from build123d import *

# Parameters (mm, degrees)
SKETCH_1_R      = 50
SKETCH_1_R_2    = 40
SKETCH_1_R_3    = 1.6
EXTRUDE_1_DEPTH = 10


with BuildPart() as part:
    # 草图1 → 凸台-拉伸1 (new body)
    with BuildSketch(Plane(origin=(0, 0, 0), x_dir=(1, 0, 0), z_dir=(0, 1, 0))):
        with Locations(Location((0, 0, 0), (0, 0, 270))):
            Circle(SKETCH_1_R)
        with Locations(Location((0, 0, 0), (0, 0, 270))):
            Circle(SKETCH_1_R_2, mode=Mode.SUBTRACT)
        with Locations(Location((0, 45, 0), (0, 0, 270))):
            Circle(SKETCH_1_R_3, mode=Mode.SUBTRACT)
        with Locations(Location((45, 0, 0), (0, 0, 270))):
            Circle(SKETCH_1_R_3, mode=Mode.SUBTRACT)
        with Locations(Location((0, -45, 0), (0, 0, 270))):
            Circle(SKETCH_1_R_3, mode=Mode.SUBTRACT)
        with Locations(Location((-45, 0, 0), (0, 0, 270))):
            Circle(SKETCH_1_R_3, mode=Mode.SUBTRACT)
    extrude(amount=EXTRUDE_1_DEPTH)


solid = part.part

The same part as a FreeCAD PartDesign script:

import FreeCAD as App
import Part
import Sketcher

V = App.Vector

doc = App.newDocument("Part")
params = doc.addObject("Spreadsheet::Sheet", "Params")
for row, (alias, value) in enumerate([
    ("sketch1_diameter", "100 mm"),
    ("sketch1_diameter2", "80 mm"),
    ("sketch1_diameter3", "3.2 mm"),
    ("pad1_length", "10 mm"),
], start=1):
    params.set(f"A{row}", alias)
    params.set(f"B{row}", "=" + value)
    params.setAlias(f"B{row}", alias)

body = doc.addObject("PartDesign::Body", "Body")

sketch1 = body.newObject("Sketcher::SketchObject", "Sketch")
sketch1.AttachmentSupport = (doc.getObject("XZ_Plane"), [""])
sketch1.MapMode = "FlatFace"
sketch1.addGeometry([
    Part.Circle(V(0, 0, 0), V(0, 0, 1), 50),
    Part.Circle(V(0, -45, 0), V(0, 0, 1), 1.6),
    Part.Circle(V(-45, 0, 0), V(0, 0, 1), 1.6),
    Part.Circle(V(45, 0, 0), V(0, 0, 1), 1.6),
    Part.Circle(V(0, 0, 0), V(0, 0, 1), 40),
    Part.Circle(V(0, 45, 0), V(0, 0, 1), 1.6),
], False)
sketch1.addConstraint([
    Sketcher.Constraint("Coincident", 0, 3, -1, 1),
    Sketcher.Constraint("Coincident", 4, 3, -1, 1),
    Sketcher.Constraint("Equal", 1, 2),
    Sketcher.Constraint("Equal", 2, 3),
    Sketcher.Constraint("Equal", 3, 5),
    Sketcher.Constraint("Symmetric", 2, 3, 3, 3, -1, 1),
    Sketcher.Constraint("Symmetric", 1, 3, 5, 3, -1, 1),
    Sketcher.Constraint("PointOnObject", 1, 3, -2),
    Sketcher.Constraint("PointOnObject", 2, 3, -1),
    Sketcher.Constraint("Diameter", 0, 100.0),
    Sketcher.Constraint("Diameter", 4, 80.0),
    Sketcher.Constraint("Diameter", 1, 3.2),
    Sketcher.Constraint("DistanceY", 1, 3, -1, 1, 45.0),
    Sketcher.Constraint("DistanceX", 2, 3, -1, 1, 45.0),
])
sketch1.setExpression("Constraints[9]", "Params.sketch1_diameter")
sketch1.setExpression("Constraints[10]", "Params.sketch1_diameter2")
sketch1.setExpression("Constraints[11]", "Params.sketch1_diameter3")
pad1 = body.newObject("PartDesign::Pad", "Pad")
pad1.Profile = sketch1
pad1.setExpression("Length", "Params.pad1_length")
pad1.Reversed = True

doc.recompute()
